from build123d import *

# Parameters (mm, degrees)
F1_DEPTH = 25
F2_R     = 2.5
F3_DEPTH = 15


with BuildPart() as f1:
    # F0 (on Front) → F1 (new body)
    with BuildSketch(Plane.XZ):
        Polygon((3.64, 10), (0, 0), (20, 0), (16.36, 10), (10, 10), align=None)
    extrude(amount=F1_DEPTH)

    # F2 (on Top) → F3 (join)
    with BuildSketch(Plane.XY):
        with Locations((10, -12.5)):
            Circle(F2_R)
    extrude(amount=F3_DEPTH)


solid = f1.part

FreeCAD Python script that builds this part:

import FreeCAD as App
import Part
import Sketcher

V = App.Vector

doc = App.newDocument("Part")
body = doc.addObject("PartDesign::Body", "Body")

# Sketch on XZ plane
sketch1 = body.newObject("Sketcher::SketchObject", "Sketch")
sketch1.AttachmentSupport = (doc.getObject("XZ_Plane"), [""])
sketch1.MapMode = "FlatFace"
sketch1.addGeometry([
    Part.LineSegment(V(3.64, 10, 0), V(0, 0, 0)),
    Part.LineSegment(V(0, 0, 0), V(20, 0, 0)),
    Part.LineSegment(V(20, 0, 0), V(16.36, 10, 0)),
    Part.LineSegment(V(16.36, 10, 0), V(3.64, 10, 0)),
], False)
sketch1.addConstraint([
    Sketcher.Constraint("Coincident", 0, 2, 1, 1),
    Sketcher.Constraint("Coincident", 1, 2, 2, 1),
    Sketcher.Constraint("Coincident", 2, 2, 3, 1),
    Sketcher.Constraint("Coincident", 3, 2, 0, 1),
    Sketcher.Constraint("Horizontal", 1),
    Sketcher.Constraint("Horizontal", 3),
    Sketcher.Constraint("Coincident", 0, 2, -1, 1),
    Sketcher.Constraint("Equal", 0, 2),
    Sketcher.Constraint("DistanceX", 1, 1, 1, 2, 20.0),
    Sketcher.Constraint("DistanceY", -1, 1, 2, 2, 10.0),
    Sketcher.Constraint("DistanceX", 3, 2, 3, 1, 12.72),
])
pad1 = body.newObject("PartDesign::Pad", "Pad")
pad1.Profile = sketch1
pad1.Length = 25

# Sketch on XY plane
sketch2 = body.newObject("Sketcher::SketchObject", "Sketch001")
sketch2.AttachmentSupport = (doc.getObject("XY_Plane"), [""])
sketch2.MapMode = "FlatFace"
sketch2.addGeometry(Part.Circle(V(10, -12.5, 0), V(0, 0, 1), 2.5), False)
sketch2.addConstraint([
    Sketcher.Constraint("Diameter", 0, 5.0),
    Sketcher.Constraint("DistanceX", -1, 1, 0, 3, 10.0),
    Sketcher.Constraint("DistanceY", 0, 3, -1, 1, 12.5),
])
pad2 = body.newObject("PartDesign::Pad", "Pad001")
pad2.Profile = sketch2
pad2.Length = 15

doc.recompute()
